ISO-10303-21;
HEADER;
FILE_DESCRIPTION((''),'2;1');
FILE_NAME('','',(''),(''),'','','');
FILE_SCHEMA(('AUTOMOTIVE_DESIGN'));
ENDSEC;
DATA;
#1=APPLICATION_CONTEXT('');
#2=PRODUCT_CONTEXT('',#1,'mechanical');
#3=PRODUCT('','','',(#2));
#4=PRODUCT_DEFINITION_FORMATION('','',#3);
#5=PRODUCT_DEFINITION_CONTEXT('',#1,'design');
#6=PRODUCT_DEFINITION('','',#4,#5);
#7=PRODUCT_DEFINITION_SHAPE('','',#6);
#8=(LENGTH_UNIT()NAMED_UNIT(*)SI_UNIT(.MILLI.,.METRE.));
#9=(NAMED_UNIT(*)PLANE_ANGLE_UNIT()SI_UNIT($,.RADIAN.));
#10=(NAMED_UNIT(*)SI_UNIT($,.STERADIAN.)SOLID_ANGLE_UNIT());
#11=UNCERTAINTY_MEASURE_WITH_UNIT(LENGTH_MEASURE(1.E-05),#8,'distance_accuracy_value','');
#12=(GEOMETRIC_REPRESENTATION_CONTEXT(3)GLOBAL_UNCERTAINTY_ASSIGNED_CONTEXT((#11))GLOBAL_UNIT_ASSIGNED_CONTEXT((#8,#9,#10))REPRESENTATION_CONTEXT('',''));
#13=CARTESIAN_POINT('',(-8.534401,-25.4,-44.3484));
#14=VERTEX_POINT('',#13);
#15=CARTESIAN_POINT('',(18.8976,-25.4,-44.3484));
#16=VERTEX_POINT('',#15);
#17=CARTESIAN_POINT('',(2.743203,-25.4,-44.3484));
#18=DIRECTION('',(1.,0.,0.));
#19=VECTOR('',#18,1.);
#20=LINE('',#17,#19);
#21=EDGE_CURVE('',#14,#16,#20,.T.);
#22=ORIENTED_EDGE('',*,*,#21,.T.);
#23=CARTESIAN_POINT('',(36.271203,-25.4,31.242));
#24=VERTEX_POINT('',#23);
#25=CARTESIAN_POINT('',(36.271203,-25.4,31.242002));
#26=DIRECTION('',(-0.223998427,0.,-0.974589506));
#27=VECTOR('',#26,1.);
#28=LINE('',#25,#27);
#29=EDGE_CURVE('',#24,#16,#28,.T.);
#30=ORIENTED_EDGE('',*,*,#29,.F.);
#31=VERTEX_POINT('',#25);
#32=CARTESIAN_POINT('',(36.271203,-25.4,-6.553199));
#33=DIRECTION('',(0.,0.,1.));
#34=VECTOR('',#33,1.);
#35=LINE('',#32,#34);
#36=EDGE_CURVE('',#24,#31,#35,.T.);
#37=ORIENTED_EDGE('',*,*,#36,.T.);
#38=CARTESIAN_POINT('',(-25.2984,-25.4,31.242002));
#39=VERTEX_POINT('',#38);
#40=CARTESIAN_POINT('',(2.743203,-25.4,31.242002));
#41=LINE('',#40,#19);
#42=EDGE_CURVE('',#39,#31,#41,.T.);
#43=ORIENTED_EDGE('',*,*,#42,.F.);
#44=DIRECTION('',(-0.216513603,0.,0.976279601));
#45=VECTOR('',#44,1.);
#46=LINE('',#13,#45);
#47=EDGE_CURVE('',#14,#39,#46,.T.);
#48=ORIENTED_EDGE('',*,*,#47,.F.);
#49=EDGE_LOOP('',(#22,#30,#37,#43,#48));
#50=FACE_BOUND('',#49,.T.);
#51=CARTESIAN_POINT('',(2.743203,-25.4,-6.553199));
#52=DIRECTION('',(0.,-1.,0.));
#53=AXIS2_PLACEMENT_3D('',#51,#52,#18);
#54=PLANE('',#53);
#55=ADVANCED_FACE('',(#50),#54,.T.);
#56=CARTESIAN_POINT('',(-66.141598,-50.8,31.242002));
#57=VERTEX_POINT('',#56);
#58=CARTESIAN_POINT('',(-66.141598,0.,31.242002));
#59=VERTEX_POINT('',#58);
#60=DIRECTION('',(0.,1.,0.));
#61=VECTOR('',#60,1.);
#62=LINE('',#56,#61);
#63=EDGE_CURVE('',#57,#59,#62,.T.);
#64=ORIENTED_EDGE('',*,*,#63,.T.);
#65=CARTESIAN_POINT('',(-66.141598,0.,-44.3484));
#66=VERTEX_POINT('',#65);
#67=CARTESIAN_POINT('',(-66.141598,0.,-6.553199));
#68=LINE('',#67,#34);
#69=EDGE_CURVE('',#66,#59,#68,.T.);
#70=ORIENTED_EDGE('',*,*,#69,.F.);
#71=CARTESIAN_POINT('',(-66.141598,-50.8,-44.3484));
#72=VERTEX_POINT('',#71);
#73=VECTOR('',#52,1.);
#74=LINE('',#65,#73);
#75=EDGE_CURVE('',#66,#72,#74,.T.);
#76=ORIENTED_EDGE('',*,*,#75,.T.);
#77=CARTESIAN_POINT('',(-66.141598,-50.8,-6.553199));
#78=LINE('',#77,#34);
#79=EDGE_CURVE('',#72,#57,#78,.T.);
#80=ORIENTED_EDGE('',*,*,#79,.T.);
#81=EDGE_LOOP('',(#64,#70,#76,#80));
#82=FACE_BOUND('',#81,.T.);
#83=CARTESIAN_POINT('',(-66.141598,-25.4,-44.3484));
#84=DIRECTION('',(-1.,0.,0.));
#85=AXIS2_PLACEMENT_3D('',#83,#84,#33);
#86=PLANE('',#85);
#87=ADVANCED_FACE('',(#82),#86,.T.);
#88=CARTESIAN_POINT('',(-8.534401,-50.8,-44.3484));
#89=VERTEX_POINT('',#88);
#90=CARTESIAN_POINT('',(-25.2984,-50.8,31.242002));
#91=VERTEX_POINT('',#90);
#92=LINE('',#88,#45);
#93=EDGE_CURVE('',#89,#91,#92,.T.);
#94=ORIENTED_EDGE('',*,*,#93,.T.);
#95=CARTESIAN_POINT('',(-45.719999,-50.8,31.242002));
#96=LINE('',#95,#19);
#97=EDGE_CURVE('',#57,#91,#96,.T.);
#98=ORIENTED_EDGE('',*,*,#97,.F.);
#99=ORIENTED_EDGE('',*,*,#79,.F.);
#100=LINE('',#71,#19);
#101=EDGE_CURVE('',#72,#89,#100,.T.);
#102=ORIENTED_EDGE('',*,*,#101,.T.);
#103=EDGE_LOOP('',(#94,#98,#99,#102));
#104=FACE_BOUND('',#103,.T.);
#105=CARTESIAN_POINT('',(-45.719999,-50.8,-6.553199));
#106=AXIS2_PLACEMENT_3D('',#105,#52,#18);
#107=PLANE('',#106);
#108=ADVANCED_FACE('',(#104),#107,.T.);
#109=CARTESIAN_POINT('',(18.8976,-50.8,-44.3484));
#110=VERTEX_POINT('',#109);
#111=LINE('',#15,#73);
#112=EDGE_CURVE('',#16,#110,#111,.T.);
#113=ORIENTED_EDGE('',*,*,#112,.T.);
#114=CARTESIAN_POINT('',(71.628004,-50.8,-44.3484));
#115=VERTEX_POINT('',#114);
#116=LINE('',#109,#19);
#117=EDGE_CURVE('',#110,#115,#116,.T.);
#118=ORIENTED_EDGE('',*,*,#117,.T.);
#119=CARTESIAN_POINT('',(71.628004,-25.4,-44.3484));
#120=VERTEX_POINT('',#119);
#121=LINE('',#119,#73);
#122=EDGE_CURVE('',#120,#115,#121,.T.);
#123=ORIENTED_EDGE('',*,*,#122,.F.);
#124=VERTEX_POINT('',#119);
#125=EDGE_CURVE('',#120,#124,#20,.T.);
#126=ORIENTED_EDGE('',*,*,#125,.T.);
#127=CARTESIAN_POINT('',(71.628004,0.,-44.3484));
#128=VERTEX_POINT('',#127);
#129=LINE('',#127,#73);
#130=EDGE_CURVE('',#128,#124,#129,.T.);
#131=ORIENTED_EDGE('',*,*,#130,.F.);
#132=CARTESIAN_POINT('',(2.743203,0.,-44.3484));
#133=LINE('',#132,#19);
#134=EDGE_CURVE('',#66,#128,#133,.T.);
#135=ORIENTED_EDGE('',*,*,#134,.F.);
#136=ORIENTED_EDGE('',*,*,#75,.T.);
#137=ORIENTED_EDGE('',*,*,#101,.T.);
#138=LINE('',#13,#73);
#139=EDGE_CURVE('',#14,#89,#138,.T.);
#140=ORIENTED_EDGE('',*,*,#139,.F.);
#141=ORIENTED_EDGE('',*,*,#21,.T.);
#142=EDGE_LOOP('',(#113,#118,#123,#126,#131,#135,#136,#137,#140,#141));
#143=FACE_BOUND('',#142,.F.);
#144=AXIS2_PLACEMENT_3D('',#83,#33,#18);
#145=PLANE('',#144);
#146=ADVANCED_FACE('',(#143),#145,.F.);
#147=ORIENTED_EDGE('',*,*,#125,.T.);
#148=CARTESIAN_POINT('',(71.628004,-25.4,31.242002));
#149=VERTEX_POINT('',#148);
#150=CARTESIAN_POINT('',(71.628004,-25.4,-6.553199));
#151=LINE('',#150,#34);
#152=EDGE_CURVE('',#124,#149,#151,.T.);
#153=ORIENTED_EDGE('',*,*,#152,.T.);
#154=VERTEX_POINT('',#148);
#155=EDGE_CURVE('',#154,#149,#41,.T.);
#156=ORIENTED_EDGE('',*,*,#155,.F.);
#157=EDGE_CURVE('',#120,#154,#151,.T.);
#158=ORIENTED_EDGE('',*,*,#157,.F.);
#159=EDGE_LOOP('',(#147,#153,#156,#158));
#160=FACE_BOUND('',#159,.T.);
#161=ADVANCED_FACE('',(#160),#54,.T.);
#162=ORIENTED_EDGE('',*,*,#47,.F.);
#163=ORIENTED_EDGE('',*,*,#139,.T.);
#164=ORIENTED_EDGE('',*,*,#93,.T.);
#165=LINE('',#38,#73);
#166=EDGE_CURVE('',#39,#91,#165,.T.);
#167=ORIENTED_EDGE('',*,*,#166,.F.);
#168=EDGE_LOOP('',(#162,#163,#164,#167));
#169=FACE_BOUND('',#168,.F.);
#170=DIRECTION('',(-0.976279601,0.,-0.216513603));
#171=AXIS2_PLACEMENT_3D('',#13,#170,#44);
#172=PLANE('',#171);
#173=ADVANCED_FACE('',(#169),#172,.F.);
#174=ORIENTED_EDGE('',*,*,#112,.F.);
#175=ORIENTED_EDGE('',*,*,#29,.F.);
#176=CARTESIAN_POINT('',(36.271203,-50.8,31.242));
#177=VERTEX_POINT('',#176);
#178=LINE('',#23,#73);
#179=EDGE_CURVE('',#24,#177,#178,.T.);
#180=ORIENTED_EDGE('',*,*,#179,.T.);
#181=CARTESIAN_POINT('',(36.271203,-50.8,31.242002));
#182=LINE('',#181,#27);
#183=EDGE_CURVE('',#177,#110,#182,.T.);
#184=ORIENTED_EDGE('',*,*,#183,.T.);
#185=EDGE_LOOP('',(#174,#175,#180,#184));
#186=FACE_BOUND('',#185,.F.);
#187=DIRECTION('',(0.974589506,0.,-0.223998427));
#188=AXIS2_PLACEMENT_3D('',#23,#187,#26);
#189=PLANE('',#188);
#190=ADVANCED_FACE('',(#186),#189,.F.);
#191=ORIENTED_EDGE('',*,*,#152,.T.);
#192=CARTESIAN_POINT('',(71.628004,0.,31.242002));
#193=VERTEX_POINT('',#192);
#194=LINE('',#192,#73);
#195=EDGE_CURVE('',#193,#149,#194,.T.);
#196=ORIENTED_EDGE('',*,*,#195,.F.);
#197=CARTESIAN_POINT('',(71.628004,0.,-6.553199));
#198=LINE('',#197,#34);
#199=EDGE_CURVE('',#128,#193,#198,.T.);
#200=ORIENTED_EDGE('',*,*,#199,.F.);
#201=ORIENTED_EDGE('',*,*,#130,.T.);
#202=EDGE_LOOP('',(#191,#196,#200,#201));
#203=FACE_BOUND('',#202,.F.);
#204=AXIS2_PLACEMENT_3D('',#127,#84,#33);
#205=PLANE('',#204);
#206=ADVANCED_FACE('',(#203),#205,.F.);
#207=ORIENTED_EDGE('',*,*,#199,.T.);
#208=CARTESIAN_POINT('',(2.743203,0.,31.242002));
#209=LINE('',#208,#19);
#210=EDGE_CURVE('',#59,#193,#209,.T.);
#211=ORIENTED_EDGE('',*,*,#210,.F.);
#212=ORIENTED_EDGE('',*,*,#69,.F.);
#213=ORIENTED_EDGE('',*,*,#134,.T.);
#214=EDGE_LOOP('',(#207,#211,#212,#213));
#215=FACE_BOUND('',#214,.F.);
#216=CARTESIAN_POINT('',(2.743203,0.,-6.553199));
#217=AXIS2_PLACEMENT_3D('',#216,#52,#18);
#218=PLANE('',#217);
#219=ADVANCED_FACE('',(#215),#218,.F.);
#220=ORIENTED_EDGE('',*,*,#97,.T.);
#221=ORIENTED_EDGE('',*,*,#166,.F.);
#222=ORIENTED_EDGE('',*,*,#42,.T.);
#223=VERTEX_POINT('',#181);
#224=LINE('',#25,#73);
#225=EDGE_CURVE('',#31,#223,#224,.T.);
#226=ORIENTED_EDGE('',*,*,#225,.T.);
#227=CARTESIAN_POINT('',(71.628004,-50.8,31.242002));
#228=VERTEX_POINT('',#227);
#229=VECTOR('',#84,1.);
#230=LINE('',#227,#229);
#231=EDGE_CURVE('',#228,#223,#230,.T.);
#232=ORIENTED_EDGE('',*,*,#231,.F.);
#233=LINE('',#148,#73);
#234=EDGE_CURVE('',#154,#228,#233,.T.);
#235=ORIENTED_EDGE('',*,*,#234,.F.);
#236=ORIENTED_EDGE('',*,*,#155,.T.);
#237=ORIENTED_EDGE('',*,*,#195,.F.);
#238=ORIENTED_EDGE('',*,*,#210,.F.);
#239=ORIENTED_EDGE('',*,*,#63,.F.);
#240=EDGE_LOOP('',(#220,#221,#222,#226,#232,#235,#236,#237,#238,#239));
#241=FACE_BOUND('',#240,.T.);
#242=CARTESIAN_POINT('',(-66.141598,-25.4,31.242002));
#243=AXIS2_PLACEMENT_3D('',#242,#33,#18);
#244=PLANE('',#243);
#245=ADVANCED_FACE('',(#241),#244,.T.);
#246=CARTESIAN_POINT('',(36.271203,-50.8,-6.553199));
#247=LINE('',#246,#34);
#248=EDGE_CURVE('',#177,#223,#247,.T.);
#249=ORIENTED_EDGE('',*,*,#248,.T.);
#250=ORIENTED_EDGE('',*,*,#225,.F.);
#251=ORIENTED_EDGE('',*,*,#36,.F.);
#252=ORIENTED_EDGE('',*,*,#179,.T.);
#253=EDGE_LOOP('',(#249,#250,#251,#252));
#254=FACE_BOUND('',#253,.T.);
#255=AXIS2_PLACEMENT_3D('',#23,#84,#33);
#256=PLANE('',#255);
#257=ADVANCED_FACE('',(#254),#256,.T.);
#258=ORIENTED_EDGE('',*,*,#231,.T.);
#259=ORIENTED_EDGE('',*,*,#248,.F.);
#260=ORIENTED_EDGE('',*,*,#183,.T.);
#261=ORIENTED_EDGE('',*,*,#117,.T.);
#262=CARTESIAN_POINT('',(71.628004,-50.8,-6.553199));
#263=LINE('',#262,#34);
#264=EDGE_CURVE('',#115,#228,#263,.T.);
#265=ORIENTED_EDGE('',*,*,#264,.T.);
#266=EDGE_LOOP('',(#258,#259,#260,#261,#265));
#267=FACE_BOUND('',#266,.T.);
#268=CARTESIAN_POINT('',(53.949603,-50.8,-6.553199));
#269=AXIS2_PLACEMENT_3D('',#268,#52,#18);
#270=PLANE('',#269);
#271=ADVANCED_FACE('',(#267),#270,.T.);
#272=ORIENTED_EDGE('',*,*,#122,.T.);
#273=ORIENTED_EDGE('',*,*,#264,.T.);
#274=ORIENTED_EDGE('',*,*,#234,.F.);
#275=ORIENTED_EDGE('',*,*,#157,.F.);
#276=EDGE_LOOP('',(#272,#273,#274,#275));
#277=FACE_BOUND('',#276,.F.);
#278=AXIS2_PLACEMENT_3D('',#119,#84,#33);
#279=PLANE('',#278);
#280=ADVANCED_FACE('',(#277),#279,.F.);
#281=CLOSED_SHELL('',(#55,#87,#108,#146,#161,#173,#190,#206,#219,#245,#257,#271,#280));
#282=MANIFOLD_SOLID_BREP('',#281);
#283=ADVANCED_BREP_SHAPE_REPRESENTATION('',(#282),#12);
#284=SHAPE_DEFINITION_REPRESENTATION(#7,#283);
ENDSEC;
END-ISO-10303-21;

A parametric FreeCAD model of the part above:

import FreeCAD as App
import Part
import Sketcher
from FreeCAD import Vector
Q = App.Units.Quantity

doc = App.newDocument("Part")
body = doc.addObject("PartDesign::Body", "Body")

# Sketch on XZ plane
sketch1 = body.newObject("Sketcher::SketchObject", "Sketch")
sketch1.AttachmentSupport = (doc.getObject("XZ_Plane"), [""])
sketch1.MapMode = "FlatFace"
sketch1.addGeometry([
    Part.LineSegment(Vector(-66, 31, 0), Vector(-66, -44, 0)),
    Part.LineSegment(Vector(-66, -44, 0), Vector(72, -44, 0)),
    Part.LineSegment(Vector(72, -44, 0), Vector(72, 31, 0)),
    Part.LineSegment(Vector(72, 31, 0), Vector(-66, 31, 0)),
], False)
sketch1.addConstraint([
    Sketcher.Constraint("Coincident", 0, 2, 1, 1),
    Sketcher.Constraint("Coincident", 1, 2, 2, 1),
    Sketcher.Constraint("Coincident", 2, 2, 3, 1),
    Sketcher.Constraint("Coincident", 3, 2, 0, 1),
    Sketcher.Constraint("Vertical", 0),
    Sketcher.Constraint("Horizontal", 1),
    Sketcher.Constraint("Vertical", 2),
    Sketcher.Constraint("Horizontal", 3),
    Sketcher.Constraint("DistanceX", 1, 1, 1, 2, Q("5.4240001 in")),
    Sketcher.Constraint("DistanceY", 0, 2, 0, 1, Q("2.9760001 in")),
    Sketcher.Constraint("DistanceX", -1, 1, 1, 2, Q("2.8200002 in")),
    Sketcher.Constraint("DistanceY", -1, 1, 2, 2, Q("1.2300001 in")),
])
pad1 = body.newObject("PartDesign::Pad", "Pad")
pad1.Profile = sketch1
pad1.Length = Q("1 in")

# Sketch on XZ plane
sketch2 = body.newObject("Sketcher::SketchObject", "Sketch001")
sketch2.AttachmentSupport = (doc.getObject("XZ_Plane"), [""])
sketch2.MapMode = "FlatFace"
sketch2.AttachmentOffset = App.Placement(Vector(0, 0, 1 * 25.4), App.Rotation())
sketch2.addGeometry([
    Part.LineSegment(Vector(-66.141598, 31.242002, 0), Vector(-66.141598, -44.3484, 0)),  # 0
    Part.LineSegment(Vector(-66.141598, -44.3484, 0), Vector(-8.534401, -44.3484, 0)),  # 1
    Part.LineSegment(Vector(-8.534401, -44.3484, 0), Vector(-25.2984, 31.242002, 0)),  # 2
    Part.LineSegment(Vector(-25.2984, 31.242002, 0), Vector(-66.141598, 31.242002, 0)),  # 3
    Part.LineSegment(Vector(71.628004, -44.3484, 0), Vector(71.628004, 31.242002, 0)),  # 4
    Part.LineSegment(Vector(71.628004, 31.242002, 0), Vector(36.271203, 31.242002, 0)),  # 5
    Part.LineSegment(Vector(36.271203, 31.242, 0), Vector(36.271203, 31.242002, 0)),  # 6
    Part.LineSegment(Vector(36.271203, 31.242, 0), Vector(18.8976, -44.3484, 0)),  # 7
    Part.LineSegment(Vector(18.8976, -44.3484, 0), Vector(71.628004, -44.3484, 0)),  # 8
], False)
sketch2.addConstraint([
    Sketcher.Constraint("Coincident", 0, 2, 1, 1),
    Sketcher.Constraint("Coincident", 1, 2, 2, 1),
    Sketcher.Constraint("Coincident", 2, 2, 3, 1),
    Sketcher.Constraint("Coincident", 3, 2, 0, 1),
    Sketcher.Constraint("Coincident", 4, 2, 5, 1),
    Sketcher.Constraint("Coincident", 5, 2, 6, 1),
    Sketcher.Constraint("Coincident", 6, 2, 7, 1),
    Sketcher.Constraint("Coincident", 7, 2, 8, 1),
    Sketcher.Constraint("Coincident", 8, 2, 4, 1),
    Sketcher.Constraint("Vertical", 0),
    Sketcher.Constraint("Horizontal", 1),
    Sketcher.Constraint("Horizontal", 3),
    Sketcher.Constraint("Vertical", 4),
    Sketcher.Constraint("Horizontal", 5),
    Sketcher.Constraint("Vertical", 6),
    Sketcher.Constraint("Horizontal", 8),
    Sketcher.Constraint("DistanceX", 1, 1, 1, 2, Q("2.2679999 in")),
    Sketcher.Constraint("DistanceX", 3, 2, 3, 1, Q("1.6079999 in")),
    Sketcher.Constraint("DistanceX", 5, 2, 5, 1, Q("1.392 in")),
    Sketcher.Constraint("DistanceX", 8, 1, 8, 2, Q("2.0760001 in")),
    Sketcher.Constraint("DistanceY", 0, 2, 0, 1, Q("2.9760001 in")),
    Sketcher.Constraint("DistanceY", 4, 1, 4, 2, Q("2.9760001 in")),
    Sketcher.Constraint("DistanceY", -1, 1, 2, 2, Q("1.2300001 in")),
    Sketcher.Constraint("DistanceX", -1, 1, 4, 2, Q("2.8200001 in")),
    Sketcher.Constraint("DistanceY", -1, 1, 4, 2, Q("1.2300001 in")),
    Sketcher.Constraint("DistanceY", -1, 1, 6, 2, Q("1.2300001 in")),
    Sketcher.Constraint("DistanceX", 1, 2, 7, 2, Q("1.08 in")),
])
pad2 = body.newObject("PartDesign::Pad", "Pad001")
pad2.Profile = sketch2
pad2.Length = Q("1 in")

doc.recompute()
